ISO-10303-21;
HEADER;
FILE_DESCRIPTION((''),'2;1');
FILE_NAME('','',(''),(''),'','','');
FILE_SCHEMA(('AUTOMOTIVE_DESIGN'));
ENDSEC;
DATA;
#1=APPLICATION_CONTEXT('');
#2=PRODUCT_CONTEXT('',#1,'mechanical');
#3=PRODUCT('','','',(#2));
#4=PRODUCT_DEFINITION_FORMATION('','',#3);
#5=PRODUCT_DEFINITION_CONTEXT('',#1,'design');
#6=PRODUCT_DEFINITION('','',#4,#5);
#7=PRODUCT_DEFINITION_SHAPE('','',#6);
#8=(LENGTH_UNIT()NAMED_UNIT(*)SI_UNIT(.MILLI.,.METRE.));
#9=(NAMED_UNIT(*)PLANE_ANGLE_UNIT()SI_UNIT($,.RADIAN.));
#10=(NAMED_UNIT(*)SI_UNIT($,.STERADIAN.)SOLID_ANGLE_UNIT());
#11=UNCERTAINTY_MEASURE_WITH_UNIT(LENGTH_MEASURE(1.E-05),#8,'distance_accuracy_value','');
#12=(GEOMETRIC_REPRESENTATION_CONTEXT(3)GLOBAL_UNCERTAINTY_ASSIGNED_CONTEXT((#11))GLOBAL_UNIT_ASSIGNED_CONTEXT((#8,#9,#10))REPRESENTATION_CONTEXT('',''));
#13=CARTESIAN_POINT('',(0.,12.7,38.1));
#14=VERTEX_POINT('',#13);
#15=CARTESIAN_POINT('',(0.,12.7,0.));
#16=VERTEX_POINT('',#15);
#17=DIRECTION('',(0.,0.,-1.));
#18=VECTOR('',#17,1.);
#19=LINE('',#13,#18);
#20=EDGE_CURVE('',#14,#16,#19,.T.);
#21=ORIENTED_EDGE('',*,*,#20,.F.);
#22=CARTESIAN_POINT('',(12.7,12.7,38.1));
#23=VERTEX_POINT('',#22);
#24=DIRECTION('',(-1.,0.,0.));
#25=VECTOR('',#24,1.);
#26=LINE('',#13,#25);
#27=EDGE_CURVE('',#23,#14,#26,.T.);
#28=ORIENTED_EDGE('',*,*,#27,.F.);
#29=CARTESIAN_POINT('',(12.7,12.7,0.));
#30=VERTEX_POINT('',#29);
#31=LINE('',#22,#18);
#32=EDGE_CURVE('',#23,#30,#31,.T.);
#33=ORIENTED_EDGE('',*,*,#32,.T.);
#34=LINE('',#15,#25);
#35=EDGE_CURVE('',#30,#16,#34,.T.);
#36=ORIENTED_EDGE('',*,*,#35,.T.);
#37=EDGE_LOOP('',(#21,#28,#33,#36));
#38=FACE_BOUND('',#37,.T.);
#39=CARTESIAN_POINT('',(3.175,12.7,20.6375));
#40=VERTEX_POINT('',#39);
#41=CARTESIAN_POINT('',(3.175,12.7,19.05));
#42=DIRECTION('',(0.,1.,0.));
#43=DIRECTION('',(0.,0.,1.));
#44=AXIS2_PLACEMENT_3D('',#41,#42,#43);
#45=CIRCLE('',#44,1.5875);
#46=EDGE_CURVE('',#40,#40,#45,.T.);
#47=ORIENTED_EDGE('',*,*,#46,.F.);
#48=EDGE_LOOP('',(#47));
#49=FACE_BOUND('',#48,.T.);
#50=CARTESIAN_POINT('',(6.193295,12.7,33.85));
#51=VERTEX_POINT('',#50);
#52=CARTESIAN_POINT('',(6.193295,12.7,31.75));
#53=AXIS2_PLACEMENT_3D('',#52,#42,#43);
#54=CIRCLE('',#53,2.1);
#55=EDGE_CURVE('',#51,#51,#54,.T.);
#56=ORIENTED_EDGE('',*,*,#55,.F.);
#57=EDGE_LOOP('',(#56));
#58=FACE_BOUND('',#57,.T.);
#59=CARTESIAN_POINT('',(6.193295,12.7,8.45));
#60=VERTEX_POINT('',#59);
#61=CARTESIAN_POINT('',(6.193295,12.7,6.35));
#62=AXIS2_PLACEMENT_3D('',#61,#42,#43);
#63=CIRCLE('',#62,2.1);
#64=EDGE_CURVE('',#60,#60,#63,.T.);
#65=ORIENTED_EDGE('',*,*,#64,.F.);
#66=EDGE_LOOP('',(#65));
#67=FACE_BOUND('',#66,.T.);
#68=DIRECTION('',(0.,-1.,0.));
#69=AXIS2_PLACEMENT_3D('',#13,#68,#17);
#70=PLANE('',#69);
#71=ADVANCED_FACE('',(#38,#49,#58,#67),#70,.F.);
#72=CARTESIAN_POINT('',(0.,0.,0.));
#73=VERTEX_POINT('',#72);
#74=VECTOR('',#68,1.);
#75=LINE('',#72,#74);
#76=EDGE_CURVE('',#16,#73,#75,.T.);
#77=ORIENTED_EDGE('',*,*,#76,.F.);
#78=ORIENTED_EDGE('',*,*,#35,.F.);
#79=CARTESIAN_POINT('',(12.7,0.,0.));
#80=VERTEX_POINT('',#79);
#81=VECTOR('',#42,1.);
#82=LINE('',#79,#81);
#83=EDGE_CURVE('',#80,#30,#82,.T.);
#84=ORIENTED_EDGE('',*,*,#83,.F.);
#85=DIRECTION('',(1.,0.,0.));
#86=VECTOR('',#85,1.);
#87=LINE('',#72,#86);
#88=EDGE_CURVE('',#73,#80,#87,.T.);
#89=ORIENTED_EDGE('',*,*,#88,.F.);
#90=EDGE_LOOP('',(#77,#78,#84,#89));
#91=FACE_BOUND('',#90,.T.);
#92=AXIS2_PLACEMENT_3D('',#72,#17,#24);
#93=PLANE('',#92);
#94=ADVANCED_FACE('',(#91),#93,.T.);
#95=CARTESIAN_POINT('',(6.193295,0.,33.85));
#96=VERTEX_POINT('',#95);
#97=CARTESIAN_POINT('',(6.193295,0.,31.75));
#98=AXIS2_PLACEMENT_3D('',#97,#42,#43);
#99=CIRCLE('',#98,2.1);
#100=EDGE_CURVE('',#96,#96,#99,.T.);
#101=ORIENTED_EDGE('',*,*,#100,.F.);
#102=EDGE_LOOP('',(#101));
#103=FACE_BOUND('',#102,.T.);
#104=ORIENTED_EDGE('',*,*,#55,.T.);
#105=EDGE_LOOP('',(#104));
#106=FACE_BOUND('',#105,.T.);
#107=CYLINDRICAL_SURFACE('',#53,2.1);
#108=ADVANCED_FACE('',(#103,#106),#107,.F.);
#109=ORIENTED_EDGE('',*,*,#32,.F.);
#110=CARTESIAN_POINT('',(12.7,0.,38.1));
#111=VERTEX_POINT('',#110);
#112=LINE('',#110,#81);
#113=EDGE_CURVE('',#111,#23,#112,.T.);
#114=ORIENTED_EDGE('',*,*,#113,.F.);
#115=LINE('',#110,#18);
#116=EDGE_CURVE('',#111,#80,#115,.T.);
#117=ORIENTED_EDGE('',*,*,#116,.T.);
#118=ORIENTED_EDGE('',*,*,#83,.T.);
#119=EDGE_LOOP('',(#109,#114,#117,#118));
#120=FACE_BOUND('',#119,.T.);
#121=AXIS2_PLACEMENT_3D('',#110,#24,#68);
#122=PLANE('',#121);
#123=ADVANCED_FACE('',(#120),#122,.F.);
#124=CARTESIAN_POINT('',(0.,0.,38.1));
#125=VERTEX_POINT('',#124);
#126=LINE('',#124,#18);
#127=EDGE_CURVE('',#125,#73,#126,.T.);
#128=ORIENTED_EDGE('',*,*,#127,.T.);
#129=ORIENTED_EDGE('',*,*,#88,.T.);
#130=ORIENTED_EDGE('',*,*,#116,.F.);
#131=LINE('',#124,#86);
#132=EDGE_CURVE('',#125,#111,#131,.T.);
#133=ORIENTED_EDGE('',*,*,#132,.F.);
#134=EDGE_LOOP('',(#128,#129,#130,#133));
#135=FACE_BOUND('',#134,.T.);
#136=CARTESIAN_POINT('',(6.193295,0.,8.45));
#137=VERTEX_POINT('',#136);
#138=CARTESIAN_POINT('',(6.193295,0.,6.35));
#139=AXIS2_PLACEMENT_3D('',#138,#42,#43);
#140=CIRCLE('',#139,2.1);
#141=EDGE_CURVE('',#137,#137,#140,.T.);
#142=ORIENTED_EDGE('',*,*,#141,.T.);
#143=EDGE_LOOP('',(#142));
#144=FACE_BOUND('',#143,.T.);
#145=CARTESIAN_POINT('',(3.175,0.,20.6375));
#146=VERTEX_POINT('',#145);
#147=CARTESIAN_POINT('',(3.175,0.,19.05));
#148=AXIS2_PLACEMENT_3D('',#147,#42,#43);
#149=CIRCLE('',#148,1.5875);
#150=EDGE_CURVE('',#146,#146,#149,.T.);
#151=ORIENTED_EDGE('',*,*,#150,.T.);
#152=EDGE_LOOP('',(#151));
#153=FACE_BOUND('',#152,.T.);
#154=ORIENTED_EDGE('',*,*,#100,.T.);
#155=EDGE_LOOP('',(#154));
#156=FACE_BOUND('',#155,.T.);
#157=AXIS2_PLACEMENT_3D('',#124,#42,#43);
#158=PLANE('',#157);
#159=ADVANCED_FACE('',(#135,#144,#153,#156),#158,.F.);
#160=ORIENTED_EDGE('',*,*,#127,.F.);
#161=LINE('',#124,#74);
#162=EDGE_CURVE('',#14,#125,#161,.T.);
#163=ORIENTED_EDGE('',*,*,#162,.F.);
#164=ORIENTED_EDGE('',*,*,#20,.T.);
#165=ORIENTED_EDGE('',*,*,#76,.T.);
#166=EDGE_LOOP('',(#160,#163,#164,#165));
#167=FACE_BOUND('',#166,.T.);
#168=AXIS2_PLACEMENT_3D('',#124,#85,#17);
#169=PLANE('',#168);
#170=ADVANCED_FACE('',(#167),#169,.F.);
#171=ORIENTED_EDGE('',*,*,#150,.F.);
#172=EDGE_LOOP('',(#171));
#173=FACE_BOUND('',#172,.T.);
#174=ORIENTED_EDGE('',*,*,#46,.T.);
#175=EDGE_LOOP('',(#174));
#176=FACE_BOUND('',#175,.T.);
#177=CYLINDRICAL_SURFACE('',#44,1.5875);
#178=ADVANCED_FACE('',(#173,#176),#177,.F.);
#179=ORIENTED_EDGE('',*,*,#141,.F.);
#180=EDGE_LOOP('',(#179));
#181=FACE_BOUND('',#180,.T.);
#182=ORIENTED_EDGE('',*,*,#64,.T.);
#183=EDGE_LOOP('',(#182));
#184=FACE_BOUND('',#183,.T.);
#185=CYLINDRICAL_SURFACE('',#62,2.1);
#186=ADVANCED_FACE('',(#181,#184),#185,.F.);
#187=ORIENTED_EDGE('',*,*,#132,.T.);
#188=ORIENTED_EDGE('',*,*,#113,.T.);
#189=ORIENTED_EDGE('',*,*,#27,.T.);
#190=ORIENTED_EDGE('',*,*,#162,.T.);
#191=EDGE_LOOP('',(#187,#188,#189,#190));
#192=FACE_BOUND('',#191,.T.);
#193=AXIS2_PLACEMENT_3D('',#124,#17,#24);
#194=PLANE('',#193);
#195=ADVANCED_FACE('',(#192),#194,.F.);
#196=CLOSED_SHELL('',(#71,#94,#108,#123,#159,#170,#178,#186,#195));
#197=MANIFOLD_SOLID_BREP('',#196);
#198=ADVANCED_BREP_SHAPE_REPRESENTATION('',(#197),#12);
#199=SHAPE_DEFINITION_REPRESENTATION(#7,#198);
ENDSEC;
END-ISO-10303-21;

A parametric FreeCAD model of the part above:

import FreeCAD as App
import Part
import Sketcher
from FreeCAD import Vector
Q = App.Units.Quantity


def add_polygon(sketch, points):
    """Adds a closed chain of lines whose ends are joined by coincident constraints."""
    first, n = sketch.GeometryCount, len(points)
    for a, b in zip(points, points[1:] + points[:1]):
        sketch.addGeometry(Part.LineSegment(App.Vector(*a, 0), App.Vector(*b, 0)), False)
    for i in range(n):
        sketch.addConstraint(Sketcher.Constraint("Coincident", first + i, 2, first + (i + 1) % n, 1))

doc = App.newDocument("Part")
params = doc.addObject("Spreadsheet::Sheet", "Params")
for row, (alias, value) in enumerate([
    ("sketch1_width", "0.5 in"),
    ("pad1_length", "1.5 in"),
    ("hole_diameter", "4.2 mm"),
    ("sketch3_diameter", "0.125 in"),
    ("hole2_diameter", "0.125 in"),
], start=1):
    params.set(f"A{row}", alias)
    params.set(f"B{row}", "=" + value)
    params.setAlias(f"B{row}", alias)

body = doc.addObject("PartDesign::Body", "Body")

# Sketch on XY plane
sketch1 = body.newObject("Sketcher::SketchObject", "Sketch")
sketch1.AttachmentSupport = (doc.getObject("XY_Plane"), [""])
sketch1.MapMode = "FlatFace"
add_polygon(sketch1, [(0, 12.7), (0, 0), (12.7, 0), (12.7, 12.7)])  # lines 0-3
sketch1.addConstraint(Sketcher.Constraint("Vertical", 0))
sketch1.addConstraint(Sketcher.Constraint("Horizontal", 1))
sketch1.addConstraint(Sketcher.Constraint("Vertical", 2))
sketch1.addConstraint(Sketcher.Constraint("Horizontal", 3))
sketch1.addConstraint(Sketcher.Constraint("Coincident", 0, 2, -1, 1))
sketch1.addConstraint(Sketcher.Constraint("Equal", 3, 0))
sketch1.addConstraint(Sketcher.Constraint("DistanceX", 1, 1, 1, 2, Q("0.5 in")))
sketch1.setExpression("Constraints[10]", "Params.sketch1_width")
pad1 = body.newObject("PartDesign::Pad", "Pad")
pad1.Profile = sketch1
pad1.setExpression("Length", "Params.pad1_length")

# Sketch on XZ plane
sketch2 = body.newObject("Sketcher::SketchObject", "Sketch001")
sketch2.AttachmentSupport = (doc.getObject("XZ_Plane"), [""])
sketch2.MapMode = "FlatFace"
sketch2.AttachmentOffset = App.Placement(Vector(0, 0, -0.5 * 25.4), App.Rotation())
sketch2.addGeometry(Part.Circle(Vector(6.193295, 6.35, 0), Vector(0, 0, 1), 2.1), False)
sketch2.addGeometry(Part.Circle(Vector(6.193295, 31.75, 0), Vector(0, 0, 1), 2.1), False)
sketch2.addConstraint(Sketcher.Constraint("Equal", 0, 1))
sketch2.addConstraint(Sketcher.Constraint("Vertical", 0, 3, 1, 3))
sketch2.addConstraint(Sketcher.Constraint("DistanceY", 0, 3, 1, 3, Q("1 in")))
sketch2.addConstraint(Sketcher.Constraint("Diameter", 0, 4.2))
sketch2.addConstraint(Sketcher.Constraint("DistanceY", -1, 1, 0, 3, Q("0.25 in")))
sketch2.addConstraint(Sketcher.Constraint("DistanceX", -1, 1, 0, 3, 6.193295))
doc.recompute()
hole = body.newObject("PartDesign::Hole", "Hole")
hole.Profile = sketch2
hole.ThreadType = "None"
hole.setExpression("Diameter", "Params.hole_diameter")
hole.DepthType = "ThroughAll"
hole.Reversed = True

# Sketch on XZ plane
sketch3 = body.newObject("Sketcher::SketchObject", "Sketch002")
sketch3.AttachmentSupport = (doc.getObject("XZ_Plane"), [""])
sketch3.MapMode = "FlatFace"
sketch3.AttachmentOffset = App.Placement(Vector(0, 0, -0.5 * 25.4), App.Rotation())
sketch3.addGeometry(Part.Circle(Vector(3.175, 19.05, 0), Vector(0, 0, 1), 1.5875), False)
sketch3.addConstraint(Sketcher.Constraint("Diameter", 0, Q("0.125 in")))
sketch3.addConstraint(Sketcher.Constraint("DistanceY", -1, 1, 0, 3, Q("0.75 in")))
sketch3.addConstraint(Sketcher.Constraint("DistanceX", -1, 1, 0, 3, Q("0.125 in")))
sketch3.setExpression("Constraints[0]", "Params.sketch3_diameter")
doc.recompute()
hole2 = body.newObject("PartDesign::Hole", "Hole001")
hole2.Profile = sketch3
hole2.ThreadType = "None"
hole2.setExpression("Diameter", "Params.hole2_diameter")
hole2.DepthType = "ThroughAll"
hole2.Reversed = True

doc.recompute()
